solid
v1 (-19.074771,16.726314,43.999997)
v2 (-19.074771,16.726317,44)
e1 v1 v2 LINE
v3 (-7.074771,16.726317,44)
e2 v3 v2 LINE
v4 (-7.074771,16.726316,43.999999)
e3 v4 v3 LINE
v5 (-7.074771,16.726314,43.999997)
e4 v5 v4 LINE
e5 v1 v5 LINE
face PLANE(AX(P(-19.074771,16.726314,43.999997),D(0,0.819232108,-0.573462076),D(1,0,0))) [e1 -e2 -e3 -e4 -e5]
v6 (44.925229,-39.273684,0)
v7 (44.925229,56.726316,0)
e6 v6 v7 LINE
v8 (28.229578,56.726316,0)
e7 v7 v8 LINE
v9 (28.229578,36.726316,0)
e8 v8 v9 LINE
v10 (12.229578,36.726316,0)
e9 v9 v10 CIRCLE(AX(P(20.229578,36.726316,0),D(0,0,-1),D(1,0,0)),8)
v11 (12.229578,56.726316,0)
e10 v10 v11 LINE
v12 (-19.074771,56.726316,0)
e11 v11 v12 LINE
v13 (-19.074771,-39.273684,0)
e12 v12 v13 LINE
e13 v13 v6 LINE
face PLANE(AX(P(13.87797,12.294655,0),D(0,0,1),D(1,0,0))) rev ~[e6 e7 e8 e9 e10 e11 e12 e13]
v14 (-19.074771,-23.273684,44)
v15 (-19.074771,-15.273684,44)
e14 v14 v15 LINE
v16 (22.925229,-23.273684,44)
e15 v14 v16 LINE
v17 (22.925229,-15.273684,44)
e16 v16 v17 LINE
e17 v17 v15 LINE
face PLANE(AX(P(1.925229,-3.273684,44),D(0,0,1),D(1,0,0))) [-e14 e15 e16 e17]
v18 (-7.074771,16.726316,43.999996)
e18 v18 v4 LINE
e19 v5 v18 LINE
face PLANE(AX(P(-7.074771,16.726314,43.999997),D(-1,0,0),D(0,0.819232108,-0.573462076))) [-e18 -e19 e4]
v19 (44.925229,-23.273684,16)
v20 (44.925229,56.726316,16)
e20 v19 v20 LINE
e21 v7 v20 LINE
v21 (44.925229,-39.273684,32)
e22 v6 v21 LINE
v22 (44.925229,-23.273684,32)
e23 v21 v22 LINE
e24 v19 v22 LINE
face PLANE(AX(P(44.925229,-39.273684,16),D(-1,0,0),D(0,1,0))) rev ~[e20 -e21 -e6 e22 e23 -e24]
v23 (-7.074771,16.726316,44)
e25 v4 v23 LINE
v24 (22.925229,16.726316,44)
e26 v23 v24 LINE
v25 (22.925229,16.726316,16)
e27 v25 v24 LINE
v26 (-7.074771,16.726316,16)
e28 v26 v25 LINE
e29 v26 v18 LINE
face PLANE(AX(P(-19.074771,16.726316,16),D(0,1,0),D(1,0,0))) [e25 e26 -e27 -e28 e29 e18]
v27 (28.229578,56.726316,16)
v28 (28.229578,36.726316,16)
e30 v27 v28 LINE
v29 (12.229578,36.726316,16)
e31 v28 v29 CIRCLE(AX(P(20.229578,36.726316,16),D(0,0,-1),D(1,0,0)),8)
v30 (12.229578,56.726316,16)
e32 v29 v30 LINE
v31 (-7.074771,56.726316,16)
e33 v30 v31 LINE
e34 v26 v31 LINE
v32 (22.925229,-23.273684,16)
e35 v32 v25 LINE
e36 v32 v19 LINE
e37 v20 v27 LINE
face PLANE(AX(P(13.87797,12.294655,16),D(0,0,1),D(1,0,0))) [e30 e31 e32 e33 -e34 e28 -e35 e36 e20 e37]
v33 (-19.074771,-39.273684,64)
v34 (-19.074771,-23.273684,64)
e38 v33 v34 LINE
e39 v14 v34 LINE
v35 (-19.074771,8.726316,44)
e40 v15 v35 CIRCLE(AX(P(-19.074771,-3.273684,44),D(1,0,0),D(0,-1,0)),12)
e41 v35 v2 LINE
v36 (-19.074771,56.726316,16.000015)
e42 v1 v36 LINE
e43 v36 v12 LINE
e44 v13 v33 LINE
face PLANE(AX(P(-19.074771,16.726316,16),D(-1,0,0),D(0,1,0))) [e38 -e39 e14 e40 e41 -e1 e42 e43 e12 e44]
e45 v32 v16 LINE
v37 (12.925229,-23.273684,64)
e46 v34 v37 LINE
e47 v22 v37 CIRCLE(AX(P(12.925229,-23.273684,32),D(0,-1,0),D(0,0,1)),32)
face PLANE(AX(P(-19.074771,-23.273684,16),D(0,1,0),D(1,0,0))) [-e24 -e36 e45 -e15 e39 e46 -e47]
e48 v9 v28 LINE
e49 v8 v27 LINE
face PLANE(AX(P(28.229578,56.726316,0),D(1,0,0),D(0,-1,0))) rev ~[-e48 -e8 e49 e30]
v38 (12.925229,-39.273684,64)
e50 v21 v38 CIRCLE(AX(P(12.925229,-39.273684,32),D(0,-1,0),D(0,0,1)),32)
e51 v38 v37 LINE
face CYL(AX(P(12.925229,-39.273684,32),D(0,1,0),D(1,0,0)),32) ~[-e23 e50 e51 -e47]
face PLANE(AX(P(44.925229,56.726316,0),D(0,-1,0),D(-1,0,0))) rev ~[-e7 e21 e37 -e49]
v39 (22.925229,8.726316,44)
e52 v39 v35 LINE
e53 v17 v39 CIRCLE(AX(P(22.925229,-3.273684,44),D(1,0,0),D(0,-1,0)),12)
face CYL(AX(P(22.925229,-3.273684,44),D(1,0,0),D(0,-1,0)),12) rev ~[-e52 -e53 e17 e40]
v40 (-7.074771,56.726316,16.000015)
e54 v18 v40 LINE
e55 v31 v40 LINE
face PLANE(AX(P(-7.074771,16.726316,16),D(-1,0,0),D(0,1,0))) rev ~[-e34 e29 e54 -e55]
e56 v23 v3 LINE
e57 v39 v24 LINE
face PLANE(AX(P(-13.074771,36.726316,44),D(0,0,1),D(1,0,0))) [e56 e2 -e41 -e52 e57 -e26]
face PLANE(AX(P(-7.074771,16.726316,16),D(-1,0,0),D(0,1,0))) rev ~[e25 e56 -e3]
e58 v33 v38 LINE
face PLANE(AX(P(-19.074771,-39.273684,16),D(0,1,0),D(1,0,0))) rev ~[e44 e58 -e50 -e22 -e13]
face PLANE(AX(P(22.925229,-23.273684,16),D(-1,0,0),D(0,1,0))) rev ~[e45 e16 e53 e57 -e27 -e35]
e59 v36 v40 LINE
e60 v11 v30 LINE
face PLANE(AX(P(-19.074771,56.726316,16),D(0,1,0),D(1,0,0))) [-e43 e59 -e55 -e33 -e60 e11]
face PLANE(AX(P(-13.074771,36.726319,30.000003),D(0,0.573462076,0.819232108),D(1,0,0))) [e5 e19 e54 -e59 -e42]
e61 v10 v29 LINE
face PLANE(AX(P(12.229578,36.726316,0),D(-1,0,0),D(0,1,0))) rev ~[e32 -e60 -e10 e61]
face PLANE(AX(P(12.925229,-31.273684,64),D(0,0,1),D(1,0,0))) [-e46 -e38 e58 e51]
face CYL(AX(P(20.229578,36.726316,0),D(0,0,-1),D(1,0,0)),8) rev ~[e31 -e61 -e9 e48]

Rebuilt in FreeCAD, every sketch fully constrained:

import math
import FreeCAD as App
import Part
import Sketcher
Q = App.Units.Quantity


def edges_at(feature, points):
    """Names of the edges that pass closest to the given points."""
    edges = feature.Shape.Edges
    near = lambda p: min(range(len(edges)), key=lambda i: edges[i].distToShape(Part.Vertex(*p))[0])
    return sorted({f"Edge{near(p) + 1}" for p in points})


def add_polygon(sketch, points):
    """Adds a closed chain of lines whose ends are joined by coincident constraints."""
    first, n = sketch.GeometryCount, len(points)
    for a, b in zip(points, points[1:] + points[:1]):
        sketch.addGeometry(Part.LineSegment(App.Vector(*a, 0), App.Vector(*b, 0)), False)
    for i in range(n):
        sketch.addConstraint(Sketcher.Constraint("Coincident", first + i, 2, first + (i + 1) % n, 1))

doc = App.newDocument("Part")
body = doc.addObject("PartDesign::Body", "Body")

sketch1 = body.newObject("Sketcher::SketchObject", "Sketch")
sketch1.AttachmentSupport = (doc.getObject("XY_Plane"), [""])
sketch1.MapMode = "FlatFace"
sketch1.addGeometry([
    Part.LineSegment(App.Vector(-19, -39, 0), App.Vector(45, -39, 0)),
    Part.LineSegment(App.Vector(45, -39, 0), App.Vector(45, 57, 0)),
    Part.LineSegment(App.Vector(45, 57, 0), App.Vector(28, 57, 0)),
    Part.LineSegment(App.Vector(28, 57, 0), App.Vector(28, 37, 0)),
    Part.ArcOfCircle(Part.Circle(App.Vector(20, 37, 0), App.Vector(0, 0, 1), 8), math.radians(180), math.radians(360)),
    Part.LineSegment(App.Vector(12, 37, 0), App.Vector(12, 57, 0)),
    Part.LineSegment(App.Vector(12, 57, 0), App.Vector(-19, 57, 0)),
    Part.LineSegment(App.Vector(-19, 57, 0), App.Vector(-19, -39, 0)),
], False)
sketch1.addConstraint([
    Sketcher.Constraint("Coincident", 0, 2, 1, 1),
    Sketcher.Constraint("Coincident", 1, 2, 2, 1),
    Sketcher.Constraint("Coincident", 2, 2, 3, 1),
    Sketcher.Constraint("Tangent", 3, 2, 4, 2),
    Sketcher.Constraint("Tangent", 4, 1, 5, 1),
    Sketcher.Constraint("Coincident", 5, 2, 6, 1),
    Sketcher.Constraint("Coincident", 6, 2, 7, 1),
    Sketcher.Constraint("Coincident", 7, 2, 0, 1),
    Sketcher.Constraint("Horizontal", 0),
    Sketcher.Constraint("Vertical", 1),
    Sketcher.Constraint("Horizontal", 2),
    Sketcher.Constraint("Vertical", 3),
    Sketcher.Constraint("Vertical", 5),
    Sketcher.Constraint("Horizontal", 6),
    Sketcher.Constraint("Vertical", 7),
    Sketcher.Constraint("Horizontal", 2, 2, 5, 2),
    Sketcher.Constraint("Radius", 4, Q("8 mm")),
    Sketcher.Constraint("DistanceX", 0, 1, 0, 2, Q("64 mm")),
    Sketcher.Constraint("DistanceY", 1, 1, 1, 2, Q("96 mm")),
    Sketcher.Constraint("DistanceY", 3, 2, 3, 1, Q("20 mm")),
    Sketcher.Constraint("DistanceX", 2, 2, 2, 1, Q("16.695651 mm")),
    Sketcher.Constraint("DistanceX", -1, 1, 4, 3, Q("20.229578 mm")),
    Sketcher.Constraint("DistanceY", -1, 1, 4, 3, Q("36.726316 mm")),
])
pad1 = body.newObject("PartDesign::Pad", "Pad")
pad1.Profile = sketch1
pad1.Length = 16

sketch2 = body.newObject("Sketcher::SketchObject", "Sketch001")
sketch2.AttachmentSupport = (doc.getObject("XY_Plane"), [""])
sketch2.MapMode = "FlatFace"
sketch2.AttachmentOffset = App.Placement(App.Vector(0, 0, 16), App.Rotation())
add_polygon(sketch2, [(-19, -23), (-19, -39), (45, -39), (45, -23)])
sketch2.addConstraint([
    Sketcher.Constraint("Vertical", 0),
    Sketcher.Constraint("Horizontal", 1),
    Sketcher.Constraint("Vertical", 2),
    Sketcher.Constraint("Horizontal", 3),
    Sketcher.Constraint("DistanceX", 1, 1, 1, 2, Q("64 mm")),
    Sketcher.Constraint("DistanceY", 0, 2, 0, 1, Q("16 mm")),
    Sketcher.Constraint("DistanceX", 0, 2, -1, 1, Q("19.074771 mm")),
    Sketcher.Constraint("DistanceY", 0, 2, -1, 1, Q("39.273684 mm")),
])
pad2 = body.newObject("PartDesign::Pad", "Pad001")
pad2.Profile = sketch2
pad2.Length = 48
doc.recompute()

fillet = body.newObject("PartDesign::Fillet", "Fillet")
fillet.Base = (pad2, edges_at(pad2, [(44.925, -31.274, 64)]))
fillet.Radius = 32

sketch3 = body.newObject("Sketcher::SketchObject", "Sketch002")
sketch3.AttachmentSupport = (doc.getObject("XY_Plane"), [""])
sketch3.MapMode = "FlatFace"
sketch3.AttachmentOffset = App.Placement(App.Vector(0, 0, 16), App.Rotation())
add_polygon(sketch3, [(-19, 17), (-19, -23), (23, -23), (23, 17)])
sketch3.addConstraint([
    Sketcher.Constraint("Vertical", 0),
    Sketcher.Constraint("Horizontal", 1),
    Sketcher.Constraint("Vertical", 2),
    Sketcher.Constraint("Horizontal", 3),
    Sketcher.Constraint("DistanceX", 1, 1, 1, 2, Q("42 mm")),
    Sketcher.Constraint("DistanceY", 0, 2, 0, 1, Q("40 mm")),
    Sketcher.Constraint("DistanceX", 0, 2, -1, 1, Q("19.074771 mm")),
    Sketcher.Constraint("DistanceY", 0, 2, -1, 1, Q("23.273684 mm")),
])
pad3 = body.newObject("PartDesign::Pad", "Pad002")
pad3.Profile = sketch3
pad3.Length = 28

sketch4 = body.newObject("Sketcher::SketchObject", "Sketch003")
sketch4.AttachmentSupport = (doc.getObject("YZ_Plane"), [""])
sketch4.MapMode = "FlatFace"
sketch4.AttachmentOffset = App.Placement(App.Vector(0, 0, 22.925229), App.Rotation())
sketch4.addGeometry([
    Part.LineSegment(App.Vector(9, 44, 0), App.Vector(-15, 44, 0)),
    Part.ArcOfCircle(Part.Circle(App.Vector(-3, 44, 0), App.Vector(0, 0, 1), 12), math.radians(180), math.radians(360)),
], False)
sketch4.addConstraint([
    Sketcher.Constraint("Coincident", 0, 1, 1, 2),
    Sketcher.Constraint("Coincident", 1, 1, 0, 2),
    Sketcher.Constraint("Horizontal", 0),
    Sketcher.Constraint("Horizontal", 1, 3, 0, 1),
    Sketcher.Constraint("Radius", 1, Q("12 mm")),
    Sketcher.Constraint("DistanceY", -1, 1, 1, 3, Q("44 mm")),
    Sketcher.Constraint("DistanceX", 1, 3, -1, 1, Q("3.273684 mm")),
])
pocket1 = body.newObject("PartDesign::Pocket", "Pocket")
pocket1.Profile = sketch4
pocket1.Length = 50

sketch5 = body.newObject("Sketcher::SketchObject", "Sketch004")
sketch5.AttachmentSupport = (doc.getObject("XY_Plane"), [""])
sketch5.MapMode = "FlatFace"
sketch5.AttachmentOffset = App.Placement(App.Vector(0, 0, 16), App.Rotation())
add_polygon(sketch5, [(-19, 57), (-19, 17), (-7, 17), (-7, 57)])
sketch5.addConstraint([
    Sketcher.Constraint("Vertical", 0),
    Sketcher.Constraint("Horizontal", 1),
    Sketcher.Constraint("Vertical", 2),
    Sketcher.Constraint("Horizontal", 3),
    Sketcher.Constraint("DistanceX", 1, 1, 1, 2, Q("12 mm")),
    Sketcher.Constraint("DistanceY", 0, 2, 0, 1, Q("40 mm")),
    Sketcher.Constraint("DistanceX", 0, 2, -1, 1, Q("19.074771 mm")),
    Sketcher.Constraint("DistanceY", -1, 1, 0, 2, Q("16.726316 mm")),
])
pad4 = body.newObject("PartDesign::Pad", "Pad003")
pad4.Profile = sketch5
pad4.Length = 28

sketch6 = body.newObject("Sketcher::SketchObject", "Sketch005")
sketch6.Placement = App.Placement(App.Vector(0, 26.171742, 37.388202), App.Rotation(App.Vector(1, 0, 0), App.Vector(0, 0.819232108, -0.573462076), App.Vector(0, 0.573462076, 0.819232108), "ZXY"))
add_polygon(sketch6, [(-19, 37), (-19, -12), (-7, -12), (-7, 37)])
sketch6.addConstraint([
    Sketcher.Constraint("Vertical", 0),
    Sketcher.Constraint("Horizontal", 1),
    Sketcher.Constraint("Vertical", 2),
    Sketcher.Constraint("Horizontal", 3),
    Sketcher.Constraint("DistanceX", 1, 1, 1, 2, Q("12 mm")),
    Sketcher.Constraint("DistanceY", 0, 2, 0, 1, Q("48.826222 mm")),
    Sketcher.Constraint("DistanceX", 0, 2, -1, 1, Q("19.074771 mm")),
    Sketcher.Constraint("DistanceY", 0, 2, -1, 1, Q("11.529611 mm")),
])
pocket2 = body.newObject("PartDesign::Pocket", "Pocket001")
pocket2.Profile = sketch6
pocket2.Length = 25
pocket2.Reversed = True

doc.recompute()
